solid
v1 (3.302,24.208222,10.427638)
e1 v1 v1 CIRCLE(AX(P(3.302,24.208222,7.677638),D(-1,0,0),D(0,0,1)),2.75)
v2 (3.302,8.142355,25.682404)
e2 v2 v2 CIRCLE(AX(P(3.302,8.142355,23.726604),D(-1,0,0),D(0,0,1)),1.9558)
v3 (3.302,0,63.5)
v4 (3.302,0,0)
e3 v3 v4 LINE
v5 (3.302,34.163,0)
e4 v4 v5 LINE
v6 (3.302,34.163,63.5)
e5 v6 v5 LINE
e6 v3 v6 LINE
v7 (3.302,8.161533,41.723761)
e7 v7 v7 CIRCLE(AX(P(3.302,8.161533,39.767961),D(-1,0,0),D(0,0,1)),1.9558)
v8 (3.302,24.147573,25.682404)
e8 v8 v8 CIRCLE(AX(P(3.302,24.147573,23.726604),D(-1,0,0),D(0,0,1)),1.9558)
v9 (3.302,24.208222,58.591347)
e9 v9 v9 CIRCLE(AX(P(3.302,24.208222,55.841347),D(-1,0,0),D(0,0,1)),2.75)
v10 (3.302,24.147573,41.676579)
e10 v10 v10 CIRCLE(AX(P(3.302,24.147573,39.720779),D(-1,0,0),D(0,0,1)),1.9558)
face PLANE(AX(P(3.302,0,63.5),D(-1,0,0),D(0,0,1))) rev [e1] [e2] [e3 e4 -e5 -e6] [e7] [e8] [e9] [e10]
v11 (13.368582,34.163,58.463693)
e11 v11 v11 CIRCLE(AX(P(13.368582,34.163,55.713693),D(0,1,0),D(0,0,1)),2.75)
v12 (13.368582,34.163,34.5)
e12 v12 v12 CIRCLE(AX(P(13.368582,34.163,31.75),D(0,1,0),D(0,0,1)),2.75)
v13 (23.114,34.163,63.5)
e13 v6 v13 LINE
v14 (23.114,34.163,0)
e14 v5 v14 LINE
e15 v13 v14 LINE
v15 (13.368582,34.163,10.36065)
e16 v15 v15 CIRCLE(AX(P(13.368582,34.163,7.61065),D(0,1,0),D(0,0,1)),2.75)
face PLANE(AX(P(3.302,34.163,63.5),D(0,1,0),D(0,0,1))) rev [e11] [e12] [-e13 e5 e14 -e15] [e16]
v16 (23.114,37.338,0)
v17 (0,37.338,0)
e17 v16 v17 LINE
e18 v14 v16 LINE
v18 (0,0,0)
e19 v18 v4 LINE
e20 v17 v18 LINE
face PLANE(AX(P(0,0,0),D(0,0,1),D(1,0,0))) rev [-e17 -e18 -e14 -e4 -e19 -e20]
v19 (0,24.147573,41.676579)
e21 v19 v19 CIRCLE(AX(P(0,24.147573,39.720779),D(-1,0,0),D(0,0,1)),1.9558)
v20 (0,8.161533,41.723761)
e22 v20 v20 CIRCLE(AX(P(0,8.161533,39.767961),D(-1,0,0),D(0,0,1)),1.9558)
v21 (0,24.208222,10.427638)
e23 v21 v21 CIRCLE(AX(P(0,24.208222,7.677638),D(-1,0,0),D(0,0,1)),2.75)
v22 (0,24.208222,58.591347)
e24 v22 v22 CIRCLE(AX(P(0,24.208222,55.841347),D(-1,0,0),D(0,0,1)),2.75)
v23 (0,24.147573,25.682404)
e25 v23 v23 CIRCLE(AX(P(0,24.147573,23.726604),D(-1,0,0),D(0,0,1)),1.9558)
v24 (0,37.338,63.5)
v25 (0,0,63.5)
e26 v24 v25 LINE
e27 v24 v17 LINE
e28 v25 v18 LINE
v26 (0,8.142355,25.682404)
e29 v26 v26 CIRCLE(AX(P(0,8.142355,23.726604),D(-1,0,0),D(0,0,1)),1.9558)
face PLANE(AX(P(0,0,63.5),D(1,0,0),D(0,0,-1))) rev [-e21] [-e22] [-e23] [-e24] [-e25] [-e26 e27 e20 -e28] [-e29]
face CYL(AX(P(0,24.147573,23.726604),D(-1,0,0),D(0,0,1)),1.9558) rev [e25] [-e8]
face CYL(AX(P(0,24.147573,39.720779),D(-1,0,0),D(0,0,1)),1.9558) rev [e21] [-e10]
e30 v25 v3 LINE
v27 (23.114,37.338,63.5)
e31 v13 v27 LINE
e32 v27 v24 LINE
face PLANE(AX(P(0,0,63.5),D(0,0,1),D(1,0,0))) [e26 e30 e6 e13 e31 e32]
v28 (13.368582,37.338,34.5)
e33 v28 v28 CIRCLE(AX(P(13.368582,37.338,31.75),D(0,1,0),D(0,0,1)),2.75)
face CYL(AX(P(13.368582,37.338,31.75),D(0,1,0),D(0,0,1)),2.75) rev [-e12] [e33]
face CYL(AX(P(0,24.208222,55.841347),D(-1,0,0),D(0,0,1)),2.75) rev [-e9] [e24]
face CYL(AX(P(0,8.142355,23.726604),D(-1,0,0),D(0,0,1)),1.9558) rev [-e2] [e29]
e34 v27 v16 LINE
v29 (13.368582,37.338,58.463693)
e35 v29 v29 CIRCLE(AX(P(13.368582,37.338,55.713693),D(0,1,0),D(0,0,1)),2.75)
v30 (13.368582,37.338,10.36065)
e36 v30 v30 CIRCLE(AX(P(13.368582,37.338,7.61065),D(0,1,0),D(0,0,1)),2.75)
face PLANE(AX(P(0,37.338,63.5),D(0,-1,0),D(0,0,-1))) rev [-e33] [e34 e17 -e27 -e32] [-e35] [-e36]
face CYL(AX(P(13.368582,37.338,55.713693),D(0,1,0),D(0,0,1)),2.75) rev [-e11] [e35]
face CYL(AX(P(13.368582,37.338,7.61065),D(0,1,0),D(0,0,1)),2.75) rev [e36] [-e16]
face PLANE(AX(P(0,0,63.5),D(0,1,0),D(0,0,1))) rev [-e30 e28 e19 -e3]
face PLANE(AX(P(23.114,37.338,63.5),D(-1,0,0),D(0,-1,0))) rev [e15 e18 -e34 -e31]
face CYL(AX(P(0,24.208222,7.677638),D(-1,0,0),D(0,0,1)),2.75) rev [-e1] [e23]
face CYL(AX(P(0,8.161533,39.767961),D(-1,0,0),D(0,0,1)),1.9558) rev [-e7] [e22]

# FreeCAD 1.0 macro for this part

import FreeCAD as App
import Part
import Sketcher

V = App.Vector
Q = App.Units.Quantity

doc = App.newDocument("Part")
params = doc.addObject("Spreadsheet::Sheet", "Params")
for row, (alias, value) in enumerate([
    ("sketch1_width", "0.13 in"),
    ("sketch1_width2", "0.78 in"),
    ("sketch1_height", "1.47 in"),
    ("sketch1_height2", "1.345 in"),
    ("pad1_length", "2.5 in"),
    ("hole_diameter", "5.5 mm"),
    ("hole2_diameter", "5.5 mm"),
    ("hole3_diameter", "5.5 mm"),
    ("hole4_diameter", "5.5 mm"),
    ("sketch6_diameter", "0.154 in"),
    ("hole5_diameter", "0.154 in"),
    ("hole6_diameter", "5.5 mm"),
], start=1):
    params.set(f"A{row}", alias)
    params.set(f"B{row}", "=" + value)
    params.setAlias(f"B{row}", alias)

body = doc.addObject("PartDesign::Body", "Body")

sketch1 = body.newObject("Sketcher::SketchObject", "Sketch")
sketch1.AttachmentSupport = (doc.getObject("XY_Plane"), [""])
sketch1.MapMode = "FlatFace"
sketch1.addGeometry(Part.LineSegment(V(0, 37.3, 0), V(0, 0, 0)), False)
sketch1.addGeometry(Part.LineSegment(V(0, 0, 0), V(3.3, 0, 0)), False)
sketch1.addGeometry(Part.LineSegment(V(3.3, 0, 0), V(3.3, 34.2, 0)), False)
sketch1.addGeometry(Part.LineSegment(V(3.3, 34.2, 0), V(23.1, 34.2, 0)), False)
sketch1.addGeometry(Part.LineSegment(V(23.1, 34.2, 0), V(23.1, 37.3, 0)), False)
sketch1.addGeometry(Part.LineSegment(V(23.1, 37.3, 0), V(0, 37.3, 0)), False)
sketch1.addConstraint(Sketcher.Constraint("Coincident", 0, 2, 1, 1))
sketch1.addConstraint(Sketcher.Constraint("Coincident", 1, 2, 2, 1))
sketch1.addConstraint(Sketcher.Constraint("Coincident", 2, 2, 3, 1))
sketch1.addConstraint(Sketcher.Constraint("Coincident", 3, 2, 4, 1))
sketch1.addConstraint(Sketcher.Constraint("Coincident", 4, 2, 5, 1))
sketch1.addConstraint(Sketcher.Constraint("Coincident", 5, 2, 0, 1))
sketch1.addConstraint(Sketcher.Constraint("Vertical", 0))
sketch1.addConstraint(Sketcher.Constraint("Horizontal", 1))
sketch1.addConstraint(Sketcher.Constraint("Vertical", 2))
sketch1.addConstraint(Sketcher.Constraint("Horizontal", 3))
sketch1.addConstraint(Sketcher.Constraint("Vertical", 4))
sketch1.addConstraint(Sketcher.Constraint("Horizontal", 5))
sketch1.addConstraint(Sketcher.Constraint("Coincident", 0, 2, -1, 1))
sketch1.addConstraint(Sketcher.Constraint("DistanceX", 1, 1, 1, 2, Q("0.13 in")))
sketch1.addConstraint(Sketcher.Constraint("DistanceX", 3, 1, 3, 2, Q("0.78 in")))
sketch1.addConstraint(Sketcher.Constraint("DistanceY", 0, 2, 0, 1, Q("1.47 in")))
sketch1.addConstraint(Sketcher.Constraint("DistanceY", 2, 1, 2, 2, Q("1.345 in")))
sketch1.setExpression("Constraints[13]", "Params.sketch1_width")
sketch1.setExpression("Constraints[14]", "Params.sketch1_width2")
sketch1.setExpression("Constraints[15]", "Params.sketch1_height")
sketch1.setExpression("Constraints[16]", "Params.sketch1_height2")
pad1 = body.newObject("PartDesign::Pad", "Pad")
pad1.Profile = sketch1
pad1.setExpression("Length", "Params.pad1_length")

sketch2 = body.newObject("Sketcher::SketchObject", "Sketch001")
sketch2.AttachmentSupport = (doc.getObject("YZ_Plane"), [""])
sketch2.MapMode = "FlatFace"
sketch2.addGeometry(Part.Circle(V(24.2, 55.8, 0), V(0, 0, 1), 2.8), False)
sketch2.addConstraint(Sketcher.Constraint("Diameter", 0, Q("5.5 mm")))
sketch2.addConstraint(Sketcher.Constraint("DistanceX", -1, 1, 0, 3, Q("24.208222 mm")))
sketch2.addConstraint(Sketcher.Constraint("DistanceY", -1, 1, 0, 3, Q("55.841347 mm")))
doc.recompute()
hole = body.newObject("PartDesign::Hole", "Hole")
hole.Profile = sketch2
hole.ThreadType = "None"
hole.setExpression("Diameter", "Params.hole_diameter")
hole.DepthType = "ThroughAll"
hole.Reversed = True

sketch3 = body.newObject("Sketcher::SketchObject", "Sketch002")
sketch3.AttachmentSupport = (doc.getObject("YZ_Plane"), [""])
sketch3.MapMode = "FlatFace"
sketch3.addGeometry(Part.Circle(V(24.2, 7.7, 0), V(0, 0, 1), 2.8), False)
sketch3.addConstraint(Sketcher.Constraint("Diameter", 0, Q("5.5 mm")))
sketch3.addConstraint(Sketcher.Constraint("DistanceX", -1, 1, 0, 3, Q("24.208222 mm")))
sketch3.addConstraint(Sketcher.Constraint("DistanceY", -1, 1, 0, 3, Q("7.677638 mm")))
doc.recompute()
hole2 = body.newObject("PartDesign::Hole", "Hole001")
hole2.Profile = sketch3
hole2.ThreadType = "None"
hole2.setExpression("Diameter", "Params.hole2_diameter")
hole2.DepthType = "ThroughAll"
hole2.Reversed = True

sketch4 = body.newObject("Sketcher::SketchObject", "Sketch003")
sketch4.AttachmentSupport = (doc.getObject("XZ_Plane"), [""])
sketch4.MapMode = "FlatFace"
sketch4.AttachmentOffset = App.Placement(V(0, 0, -1.47 * 25.4), App.Rotation())
sketch4.addGeometry(Part.Circle(V(13.4, 31.8, 0), V(0, 0, 1), 2.8), False)
sketch4.addConstraint(Sketcher.Constraint("Diameter", 0, Q("5.5 mm")))
sketch4.addConstraint(Sketcher.Constraint("DistanceY", -1, 1, 0, 3, Q("1.25 in")))
sketch4.addConstraint(Sketcher.Constraint("DistanceX", -1, 1, 0, 3, Q("13.368582 mm")))
doc.recompute()
hole3 = body.newObject("PartDesign::Hole", "Hole002")
hole3.Profile = sketch4
hole3.ThreadType = "None"
hole3.setExpression("Diameter", "Params.hole3_diameter")
hole3.DepthType = "ThroughAll"
hole3.Reversed = True

sketch5 = body.newObject("Sketcher::SketchObject", "Sketch004")
sketch5.AttachmentSupport = (doc.getObject("XZ_Plane"), [""])
sketch5.MapMode = "FlatFace"
sketch5.AttachmentOffset = App.Placement(V(0, 0, -1.47 * 25.4), App.Rotation())
sketch5.addGeometry(Part.Circle(V(13.4, 55.7, 0), V(0, 0, 1), 2.8), False)
sketch5.addConstraint(Sketcher.Constraint("Diameter", 0, Q("5.5 mm")))
sketch5.addConstraint(Sketcher.Constraint("DistanceX", -1, 1, 0, 3, Q("13.368582 mm")))
sketch5.addConstraint(Sketcher.Constraint("DistanceY", -1, 1, 0, 3, Q("55.713693 mm")))
doc.recompute()
hole4 = body.newObject("PartDesign::Hole", "Hole003")
hole4.Profile = sketch5
hole4.ThreadType = "None"
hole4.setExpression("Diameter", "Params.hole4_diameter")
hole4.DepthType = "ThroughAll"
hole4.Reversed = True

sketch6 = body.newObject("Sketcher::SketchObject", "Sketch005")
sketch6.AttachmentSupport = (doc.getObject("YZ_Plane"), [""])
sketch6.MapMode = "FlatFace"
sketch6.addGeometry(Part.Circle(V(8.2, 39.8, 0), V(0, 0, 1), 2), False)
sketch6.addGeometry(Part.Circle(V(8.1, 23.7, 0), V(0, 0, 1), 2), False)
sketch6.addGeometry(Part.Circle(V(24.1, 23.7, 0), V(0, 0, 1), 2), False)
sketch6.addGeometry(Part.Circle(V(24.1, 39.7, 0), V(0, 0, 1), 2), False)
sketch6.addConstraint(Sketcher.Constraint("Equal", 0, 1))
sketch6.addConstraint(Sketcher.Constraint("Equal", 1, 2))
sketch6.addConstraint(Sketcher.Constraint("Equal", 2, 3))
sketch6.addConstraint(Sketcher.Constraint("Horizontal", 1, 3, 2, 3))
sketch6.addConstraint(Sketcher.Constraint("Vertical", 2, 3, 3, 3))
sketch6.addConstraint(Sketcher.Constraint("Diameter", 0, Q("0.154 in")))
sketch6.addConstraint(Sketcher.Constraint("DistanceY", -1, 1, 0, 3, Q("39.767961 mm")))
sketch6.addConstraint(Sketcher.Constraint("DistanceY", -1, 1, 3, 3, Q("39.720779 mm")))
sketch6.addConstraint(Sketcher.Constraint("DistanceX", 1, 3, 0, 3, Q("0.019179 mm")))
sketch6.addConstraint(Sketcher.Constraint("DistanceX", 1, 3, 2, 3, Q("16.005219 mm")))
sketch6.addConstraint(Sketcher.Constraint("DistanceX", -1, 1, 0, 3, Q("8.161533 mm")))
sketch6.addConstraint(Sketcher.Constraint("DistanceY", -1, 1, 1, 3, Q("23.726604 mm")))
sketch6.setExpression("Constraints[5]", "Params.sketch6_diameter")
doc.recompute()
hole5 = body.newObject("PartDesign::Hole", "Hole004")
hole5.Profile = sketch6
hole5.ThreadType = "None"
hole5.setExpression("Diameter", "Params.hole5_diameter")
hole5.DepthType = "ThroughAll"
hole5.Reversed = True

sketch7 = body.newObject("Sketcher::SketchObject", "Sketch006")
sketch7.AttachmentSupport = (doc.getObject("XZ_Plane"), [""])
sketch7.MapMode = "FlatFace"
sketch7.AttachmentOffset = App.Placement(V(0, 0, -1.47 * 25.4), App.Rotation())
sketch7.addGeometry(Part.Circle(V(13.4, 7.6, 0), V(0, 0, 1), 2.8), False)
sketch7.addConstraint(Sketcher.Constraint("Diameter", 0, Q("5.5 mm")))
sketch7.addConstraint(Sketcher.Constraint("DistanceY", -1, 1, 0, 3, Q("7.61065 mm")))
sketch7.addConstraint(Sketcher.Constraint("DistanceX", -1, 1, 0, 3, Q("13.368582 mm")))
doc.recompute()
hole6 = body.newObject("PartDesign::Hole", "Hole005")
hole6.Profile = sketch7
hole6.ThreadType = "None"
hole6.setExpression("Diameter", "Params.hole6_diameter")
hole6.DepthType = "ThroughAll"
hole6.Reversed = True

doc.recompute()
